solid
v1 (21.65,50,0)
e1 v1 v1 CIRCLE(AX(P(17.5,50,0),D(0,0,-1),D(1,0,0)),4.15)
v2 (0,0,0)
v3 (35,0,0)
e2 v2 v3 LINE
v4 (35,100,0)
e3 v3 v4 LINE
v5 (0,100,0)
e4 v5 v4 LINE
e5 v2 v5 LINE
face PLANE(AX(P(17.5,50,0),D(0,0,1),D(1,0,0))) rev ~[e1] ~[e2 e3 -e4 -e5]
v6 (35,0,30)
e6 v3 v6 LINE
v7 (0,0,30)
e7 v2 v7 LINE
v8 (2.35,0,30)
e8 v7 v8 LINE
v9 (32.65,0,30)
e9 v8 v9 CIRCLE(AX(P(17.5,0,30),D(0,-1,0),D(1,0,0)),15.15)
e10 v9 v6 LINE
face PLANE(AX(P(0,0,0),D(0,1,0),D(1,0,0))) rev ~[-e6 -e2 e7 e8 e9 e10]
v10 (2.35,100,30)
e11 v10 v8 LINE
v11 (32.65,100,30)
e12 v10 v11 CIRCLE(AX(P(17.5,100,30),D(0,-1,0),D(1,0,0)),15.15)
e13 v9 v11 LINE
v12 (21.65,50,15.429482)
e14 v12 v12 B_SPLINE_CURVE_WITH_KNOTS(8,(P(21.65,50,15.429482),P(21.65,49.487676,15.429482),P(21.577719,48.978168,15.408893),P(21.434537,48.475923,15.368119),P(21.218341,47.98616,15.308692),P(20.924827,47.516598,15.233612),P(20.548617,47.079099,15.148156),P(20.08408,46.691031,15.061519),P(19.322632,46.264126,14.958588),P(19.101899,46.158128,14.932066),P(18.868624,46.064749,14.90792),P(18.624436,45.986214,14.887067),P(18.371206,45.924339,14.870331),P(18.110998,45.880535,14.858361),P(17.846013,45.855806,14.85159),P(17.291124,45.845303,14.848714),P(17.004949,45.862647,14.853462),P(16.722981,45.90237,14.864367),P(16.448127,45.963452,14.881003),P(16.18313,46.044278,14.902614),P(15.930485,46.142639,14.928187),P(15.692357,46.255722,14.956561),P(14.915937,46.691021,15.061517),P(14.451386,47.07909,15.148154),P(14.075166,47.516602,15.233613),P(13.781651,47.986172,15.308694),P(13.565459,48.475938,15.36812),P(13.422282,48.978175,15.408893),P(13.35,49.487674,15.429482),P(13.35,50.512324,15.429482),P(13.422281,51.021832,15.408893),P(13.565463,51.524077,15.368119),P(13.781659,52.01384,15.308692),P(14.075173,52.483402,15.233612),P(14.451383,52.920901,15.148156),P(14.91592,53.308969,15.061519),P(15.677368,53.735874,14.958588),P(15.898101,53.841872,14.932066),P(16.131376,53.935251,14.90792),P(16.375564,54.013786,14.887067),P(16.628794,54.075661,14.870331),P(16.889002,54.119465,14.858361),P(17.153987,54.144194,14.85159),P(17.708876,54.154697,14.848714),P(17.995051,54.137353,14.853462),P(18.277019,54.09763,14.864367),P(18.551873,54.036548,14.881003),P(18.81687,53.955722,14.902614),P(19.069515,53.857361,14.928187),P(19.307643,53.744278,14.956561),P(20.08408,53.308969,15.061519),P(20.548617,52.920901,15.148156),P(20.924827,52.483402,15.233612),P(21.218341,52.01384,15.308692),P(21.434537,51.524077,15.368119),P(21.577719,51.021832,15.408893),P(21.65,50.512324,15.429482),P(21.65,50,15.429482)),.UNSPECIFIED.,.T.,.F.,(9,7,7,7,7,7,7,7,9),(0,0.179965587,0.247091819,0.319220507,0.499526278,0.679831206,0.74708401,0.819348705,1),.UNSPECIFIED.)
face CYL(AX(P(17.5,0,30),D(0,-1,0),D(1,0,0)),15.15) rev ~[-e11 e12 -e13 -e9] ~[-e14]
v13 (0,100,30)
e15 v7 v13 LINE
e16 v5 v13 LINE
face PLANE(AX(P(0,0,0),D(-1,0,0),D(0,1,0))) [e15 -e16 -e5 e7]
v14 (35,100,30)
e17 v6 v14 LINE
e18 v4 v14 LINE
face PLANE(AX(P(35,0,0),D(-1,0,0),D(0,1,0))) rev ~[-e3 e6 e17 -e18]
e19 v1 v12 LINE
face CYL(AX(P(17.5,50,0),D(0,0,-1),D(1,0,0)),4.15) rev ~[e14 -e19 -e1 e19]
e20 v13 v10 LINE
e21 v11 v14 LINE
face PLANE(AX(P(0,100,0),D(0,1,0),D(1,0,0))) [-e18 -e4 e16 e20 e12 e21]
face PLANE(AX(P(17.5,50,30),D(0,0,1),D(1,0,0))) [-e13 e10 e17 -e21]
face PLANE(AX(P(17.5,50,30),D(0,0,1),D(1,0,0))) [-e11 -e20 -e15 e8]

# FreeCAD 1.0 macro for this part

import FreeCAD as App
import Part
import Sketcher
from FreeCAD import Vector


def add_polygon(sketch, points):
    """Adds a closed chain of lines whose ends are joined by coincident constraints."""
    first, n = sketch.GeometryCount, len(points)
    for a, b in zip(points, points[1:] + points[:1]):
        sketch.addGeometry(Part.LineSegment(App.Vector(*a, 0), App.Vector(*b, 0)), False)
    for i in range(n):
        sketch.addConstraint(Sketcher.Constraint("Coincident", first + i, 2, first + (i + 1) % n, 1))

doc = App.newDocument("Part")
body = doc.addObject("PartDesign::Body", "Body")

sketch1 = body.newObject("Sketcher::SketchObject", "Sketch")
sketch1.AttachmentSupport = (doc.getObject("XY_Plane"), [""])
sketch1.MapMode = "FlatFace"
add_polygon(sketch1, [(0, 100), (0, 0), (35, 0), (35, 100)])
sketch1.addConstraint([
    Sketcher.Constraint("Vertical", 0),
    Sketcher.Constraint("Horizontal", 1),
    Sketcher.Constraint("Vertical", 2),
    Sketcher.Constraint("Horizontal", 3),
    Sketcher.Constraint("Coincident", 0, 2, -1, 1),
    Sketcher.Constraint("DistanceX", 1, 1, 1, 2, 35.0),
    Sketcher.Constraint("DistanceY", 0, 2, 0, 1, 100.0),
])
pad1 = body.newObject("PartDesign::Pad", "Pad")
pad1.Profile = sketch1
pad1.Length = 30

sketch2 = body.newObject("Sketcher::SketchObject", "Sketch001")
sketch2.AttachmentSupport = (doc.getObject("XZ_Plane"), [""])
sketch2.MapMode = "FlatFace"
sketch2.addGeometry(Part.Circle(Vector(18, 30, 0), Vector(0, 0, 1), 15), False)
sketch2.addConstraint([
    Sketcher.Constraint("Diameter", 0, 30.3),
    Sketcher.Constraint("DistanceY", -1, 1, 0, 3, 30.0),
    Sketcher.Constraint("DistanceX", -1, 1, 0, 3, 17.5),
])
pocket1 = body.newObject("PartDesign::Pocket", "Pocket")
pocket1.Profile = sketch2
pocket1.Length = 999

sketch3 = body.newObject("Sketcher::SketchObject", "Sketch002")
sketch3.AttachmentSupport = (doc.getObject("XY_Plane"), [""])
sketch3.MapMode = "FlatFace"
sketch3.addGeometry(Part.Circle(Vector(17.5, 50, 0), Vector(0, 0, 1), 4.2), False)
sketch3.addConstraint([
    Sketcher.Constraint("Diameter", 0, 8.3),
    Sketcher.Constraint("DistanceY", -1, 1, 0, 3, 50.0),
    Sketcher.Constraint("DistanceX", -1, 1, 0, 3, 17.5),
])
pocket2 = body.newObject("PartDesign::Pocket", "Pocket001")
pocket2.Profile = sketch3
pocket2.Length = 25
pocket2.Reversed = True

doc.recompute()
